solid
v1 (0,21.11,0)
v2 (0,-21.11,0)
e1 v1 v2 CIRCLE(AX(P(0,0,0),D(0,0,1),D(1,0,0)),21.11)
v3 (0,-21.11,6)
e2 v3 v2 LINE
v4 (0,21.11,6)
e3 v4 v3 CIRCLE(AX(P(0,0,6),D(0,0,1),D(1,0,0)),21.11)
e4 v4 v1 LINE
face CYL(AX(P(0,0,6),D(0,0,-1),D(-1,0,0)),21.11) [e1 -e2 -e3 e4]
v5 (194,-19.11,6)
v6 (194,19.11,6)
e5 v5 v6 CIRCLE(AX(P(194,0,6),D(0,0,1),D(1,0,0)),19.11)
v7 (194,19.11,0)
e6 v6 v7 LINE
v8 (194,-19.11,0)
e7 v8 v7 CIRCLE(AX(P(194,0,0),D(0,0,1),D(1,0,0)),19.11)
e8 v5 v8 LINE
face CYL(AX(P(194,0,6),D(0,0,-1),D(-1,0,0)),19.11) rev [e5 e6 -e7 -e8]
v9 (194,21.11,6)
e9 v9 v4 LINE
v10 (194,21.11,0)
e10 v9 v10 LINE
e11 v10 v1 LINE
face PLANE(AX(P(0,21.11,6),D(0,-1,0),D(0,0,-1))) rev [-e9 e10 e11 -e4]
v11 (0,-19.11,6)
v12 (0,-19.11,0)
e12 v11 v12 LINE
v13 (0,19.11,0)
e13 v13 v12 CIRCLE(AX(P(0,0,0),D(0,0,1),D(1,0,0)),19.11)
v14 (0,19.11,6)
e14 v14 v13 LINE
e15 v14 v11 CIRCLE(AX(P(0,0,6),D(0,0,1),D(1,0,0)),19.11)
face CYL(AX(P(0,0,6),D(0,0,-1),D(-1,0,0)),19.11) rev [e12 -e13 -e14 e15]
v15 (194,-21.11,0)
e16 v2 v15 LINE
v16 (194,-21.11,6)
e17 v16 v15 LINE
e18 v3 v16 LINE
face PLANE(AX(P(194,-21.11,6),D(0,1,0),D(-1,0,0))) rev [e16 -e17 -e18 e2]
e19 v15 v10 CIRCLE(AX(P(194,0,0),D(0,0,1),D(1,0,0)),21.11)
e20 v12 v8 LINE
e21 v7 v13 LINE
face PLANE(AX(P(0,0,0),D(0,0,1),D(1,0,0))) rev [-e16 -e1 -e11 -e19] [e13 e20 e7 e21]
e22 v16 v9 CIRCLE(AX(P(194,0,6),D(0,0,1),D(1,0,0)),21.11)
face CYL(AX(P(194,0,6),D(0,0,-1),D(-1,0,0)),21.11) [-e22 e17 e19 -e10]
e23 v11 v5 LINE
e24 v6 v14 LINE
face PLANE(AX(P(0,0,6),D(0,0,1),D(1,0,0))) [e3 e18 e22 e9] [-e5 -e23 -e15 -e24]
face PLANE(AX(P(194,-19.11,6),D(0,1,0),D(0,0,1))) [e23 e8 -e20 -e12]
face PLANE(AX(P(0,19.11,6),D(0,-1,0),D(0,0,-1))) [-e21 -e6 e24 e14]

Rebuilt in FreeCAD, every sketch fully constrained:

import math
import FreeCAD as App
import Part
import Sketcher
Q = App.Units.Quantity

doc = App.newDocument("Part")
body = doc.addObject("PartDesign::Body", "Body")

sketch1 = body.newObject("Sketcher::SketchObject", "Sketch")
sketch1.AttachmentSupport = (doc.getObject("XY_Plane"), [""])
sketch1.MapMode = "FlatFace"
sketch1.addGeometry([
    Part.LineSegment(App.Vector(0, -21, 0), App.Vector(194, -21, 0)),
    Part.ArcOfCircle(Part.Circle(App.Vector(194, 0, 0), App.Vector(0, 0, 1), 21), math.radians(-90), math.radians(90)),
    Part.LineSegment(App.Vector(194, 21, 0), App.Vector(0, 21, 0)),
    Part.ArcOfCircle(Part.Circle(App.Vector(0, 0, 0), App.Vector(0, 0, 1), 21), math.radians(90), math.radians(270)),
    Part.LineSegment(App.Vector(0, 19, 0), App.Vector(194, 19, 0)),
    Part.ArcOfCircle(Part.Circle(App.Vector(194, 0, 0), App.Vector(0, 0, 1), 19), math.radians(-90), math.radians(90)),
    Part.LineSegment(App.Vector(194, -19, 0), App.Vector(0, -19, 0)),
    Part.ArcOfCircle(Part.Circle(App.Vector(0, 0, 0), App.Vector(0, 0, 1), 19), math.radians(90), math.radians(270)),
], False)
sketch1.addConstraint([
    Sketcher.Constraint("Tangent", 0, 2, 1, 1),
    Sketcher.Constraint("Tangent", 1, 2, 2, 1),
    Sketcher.Constraint("Tangent", 2, 2, 3, 1),
    Sketcher.Constraint("Tangent", 3, 2, 0, 1),
    Sketcher.Constraint("Tangent", 4, 2, 5, 2),
    Sketcher.Constraint("Tangent", 5, 1, 6, 1),
    Sketcher.Constraint("Tangent", 6, 2, 7, 2),
    Sketcher.Constraint("Tangent", 7, 1, 4, 1),
    Sketcher.Constraint("Horizontal", 0),
    Sketcher.Constraint("Horizontal", 2),
    Sketcher.Constraint("Horizontal", 4),
    Sketcher.Constraint("Horizontal", 6),
    Sketcher.Constraint("Coincident", 3, 3, -1, 1),
    Sketcher.Constraint("Coincident", 7, 3, -1, 1),
    Sketcher.Constraint("Vertical", 5, 3, 0, 2),
    Sketcher.Constraint("DistanceX", 0, 1, 0, 2, Q("194 mm")),
    Sketcher.Constraint("Radius", 1, Q("21.11 mm")),
    Sketcher.Constraint("Radius", 5, Q("19.11 mm")),
])
pad1 = body.newObject("PartDesign::Pad", "Pad")
pad1.Profile = sketch1
pad1.Length = 6

doc.recompute()
